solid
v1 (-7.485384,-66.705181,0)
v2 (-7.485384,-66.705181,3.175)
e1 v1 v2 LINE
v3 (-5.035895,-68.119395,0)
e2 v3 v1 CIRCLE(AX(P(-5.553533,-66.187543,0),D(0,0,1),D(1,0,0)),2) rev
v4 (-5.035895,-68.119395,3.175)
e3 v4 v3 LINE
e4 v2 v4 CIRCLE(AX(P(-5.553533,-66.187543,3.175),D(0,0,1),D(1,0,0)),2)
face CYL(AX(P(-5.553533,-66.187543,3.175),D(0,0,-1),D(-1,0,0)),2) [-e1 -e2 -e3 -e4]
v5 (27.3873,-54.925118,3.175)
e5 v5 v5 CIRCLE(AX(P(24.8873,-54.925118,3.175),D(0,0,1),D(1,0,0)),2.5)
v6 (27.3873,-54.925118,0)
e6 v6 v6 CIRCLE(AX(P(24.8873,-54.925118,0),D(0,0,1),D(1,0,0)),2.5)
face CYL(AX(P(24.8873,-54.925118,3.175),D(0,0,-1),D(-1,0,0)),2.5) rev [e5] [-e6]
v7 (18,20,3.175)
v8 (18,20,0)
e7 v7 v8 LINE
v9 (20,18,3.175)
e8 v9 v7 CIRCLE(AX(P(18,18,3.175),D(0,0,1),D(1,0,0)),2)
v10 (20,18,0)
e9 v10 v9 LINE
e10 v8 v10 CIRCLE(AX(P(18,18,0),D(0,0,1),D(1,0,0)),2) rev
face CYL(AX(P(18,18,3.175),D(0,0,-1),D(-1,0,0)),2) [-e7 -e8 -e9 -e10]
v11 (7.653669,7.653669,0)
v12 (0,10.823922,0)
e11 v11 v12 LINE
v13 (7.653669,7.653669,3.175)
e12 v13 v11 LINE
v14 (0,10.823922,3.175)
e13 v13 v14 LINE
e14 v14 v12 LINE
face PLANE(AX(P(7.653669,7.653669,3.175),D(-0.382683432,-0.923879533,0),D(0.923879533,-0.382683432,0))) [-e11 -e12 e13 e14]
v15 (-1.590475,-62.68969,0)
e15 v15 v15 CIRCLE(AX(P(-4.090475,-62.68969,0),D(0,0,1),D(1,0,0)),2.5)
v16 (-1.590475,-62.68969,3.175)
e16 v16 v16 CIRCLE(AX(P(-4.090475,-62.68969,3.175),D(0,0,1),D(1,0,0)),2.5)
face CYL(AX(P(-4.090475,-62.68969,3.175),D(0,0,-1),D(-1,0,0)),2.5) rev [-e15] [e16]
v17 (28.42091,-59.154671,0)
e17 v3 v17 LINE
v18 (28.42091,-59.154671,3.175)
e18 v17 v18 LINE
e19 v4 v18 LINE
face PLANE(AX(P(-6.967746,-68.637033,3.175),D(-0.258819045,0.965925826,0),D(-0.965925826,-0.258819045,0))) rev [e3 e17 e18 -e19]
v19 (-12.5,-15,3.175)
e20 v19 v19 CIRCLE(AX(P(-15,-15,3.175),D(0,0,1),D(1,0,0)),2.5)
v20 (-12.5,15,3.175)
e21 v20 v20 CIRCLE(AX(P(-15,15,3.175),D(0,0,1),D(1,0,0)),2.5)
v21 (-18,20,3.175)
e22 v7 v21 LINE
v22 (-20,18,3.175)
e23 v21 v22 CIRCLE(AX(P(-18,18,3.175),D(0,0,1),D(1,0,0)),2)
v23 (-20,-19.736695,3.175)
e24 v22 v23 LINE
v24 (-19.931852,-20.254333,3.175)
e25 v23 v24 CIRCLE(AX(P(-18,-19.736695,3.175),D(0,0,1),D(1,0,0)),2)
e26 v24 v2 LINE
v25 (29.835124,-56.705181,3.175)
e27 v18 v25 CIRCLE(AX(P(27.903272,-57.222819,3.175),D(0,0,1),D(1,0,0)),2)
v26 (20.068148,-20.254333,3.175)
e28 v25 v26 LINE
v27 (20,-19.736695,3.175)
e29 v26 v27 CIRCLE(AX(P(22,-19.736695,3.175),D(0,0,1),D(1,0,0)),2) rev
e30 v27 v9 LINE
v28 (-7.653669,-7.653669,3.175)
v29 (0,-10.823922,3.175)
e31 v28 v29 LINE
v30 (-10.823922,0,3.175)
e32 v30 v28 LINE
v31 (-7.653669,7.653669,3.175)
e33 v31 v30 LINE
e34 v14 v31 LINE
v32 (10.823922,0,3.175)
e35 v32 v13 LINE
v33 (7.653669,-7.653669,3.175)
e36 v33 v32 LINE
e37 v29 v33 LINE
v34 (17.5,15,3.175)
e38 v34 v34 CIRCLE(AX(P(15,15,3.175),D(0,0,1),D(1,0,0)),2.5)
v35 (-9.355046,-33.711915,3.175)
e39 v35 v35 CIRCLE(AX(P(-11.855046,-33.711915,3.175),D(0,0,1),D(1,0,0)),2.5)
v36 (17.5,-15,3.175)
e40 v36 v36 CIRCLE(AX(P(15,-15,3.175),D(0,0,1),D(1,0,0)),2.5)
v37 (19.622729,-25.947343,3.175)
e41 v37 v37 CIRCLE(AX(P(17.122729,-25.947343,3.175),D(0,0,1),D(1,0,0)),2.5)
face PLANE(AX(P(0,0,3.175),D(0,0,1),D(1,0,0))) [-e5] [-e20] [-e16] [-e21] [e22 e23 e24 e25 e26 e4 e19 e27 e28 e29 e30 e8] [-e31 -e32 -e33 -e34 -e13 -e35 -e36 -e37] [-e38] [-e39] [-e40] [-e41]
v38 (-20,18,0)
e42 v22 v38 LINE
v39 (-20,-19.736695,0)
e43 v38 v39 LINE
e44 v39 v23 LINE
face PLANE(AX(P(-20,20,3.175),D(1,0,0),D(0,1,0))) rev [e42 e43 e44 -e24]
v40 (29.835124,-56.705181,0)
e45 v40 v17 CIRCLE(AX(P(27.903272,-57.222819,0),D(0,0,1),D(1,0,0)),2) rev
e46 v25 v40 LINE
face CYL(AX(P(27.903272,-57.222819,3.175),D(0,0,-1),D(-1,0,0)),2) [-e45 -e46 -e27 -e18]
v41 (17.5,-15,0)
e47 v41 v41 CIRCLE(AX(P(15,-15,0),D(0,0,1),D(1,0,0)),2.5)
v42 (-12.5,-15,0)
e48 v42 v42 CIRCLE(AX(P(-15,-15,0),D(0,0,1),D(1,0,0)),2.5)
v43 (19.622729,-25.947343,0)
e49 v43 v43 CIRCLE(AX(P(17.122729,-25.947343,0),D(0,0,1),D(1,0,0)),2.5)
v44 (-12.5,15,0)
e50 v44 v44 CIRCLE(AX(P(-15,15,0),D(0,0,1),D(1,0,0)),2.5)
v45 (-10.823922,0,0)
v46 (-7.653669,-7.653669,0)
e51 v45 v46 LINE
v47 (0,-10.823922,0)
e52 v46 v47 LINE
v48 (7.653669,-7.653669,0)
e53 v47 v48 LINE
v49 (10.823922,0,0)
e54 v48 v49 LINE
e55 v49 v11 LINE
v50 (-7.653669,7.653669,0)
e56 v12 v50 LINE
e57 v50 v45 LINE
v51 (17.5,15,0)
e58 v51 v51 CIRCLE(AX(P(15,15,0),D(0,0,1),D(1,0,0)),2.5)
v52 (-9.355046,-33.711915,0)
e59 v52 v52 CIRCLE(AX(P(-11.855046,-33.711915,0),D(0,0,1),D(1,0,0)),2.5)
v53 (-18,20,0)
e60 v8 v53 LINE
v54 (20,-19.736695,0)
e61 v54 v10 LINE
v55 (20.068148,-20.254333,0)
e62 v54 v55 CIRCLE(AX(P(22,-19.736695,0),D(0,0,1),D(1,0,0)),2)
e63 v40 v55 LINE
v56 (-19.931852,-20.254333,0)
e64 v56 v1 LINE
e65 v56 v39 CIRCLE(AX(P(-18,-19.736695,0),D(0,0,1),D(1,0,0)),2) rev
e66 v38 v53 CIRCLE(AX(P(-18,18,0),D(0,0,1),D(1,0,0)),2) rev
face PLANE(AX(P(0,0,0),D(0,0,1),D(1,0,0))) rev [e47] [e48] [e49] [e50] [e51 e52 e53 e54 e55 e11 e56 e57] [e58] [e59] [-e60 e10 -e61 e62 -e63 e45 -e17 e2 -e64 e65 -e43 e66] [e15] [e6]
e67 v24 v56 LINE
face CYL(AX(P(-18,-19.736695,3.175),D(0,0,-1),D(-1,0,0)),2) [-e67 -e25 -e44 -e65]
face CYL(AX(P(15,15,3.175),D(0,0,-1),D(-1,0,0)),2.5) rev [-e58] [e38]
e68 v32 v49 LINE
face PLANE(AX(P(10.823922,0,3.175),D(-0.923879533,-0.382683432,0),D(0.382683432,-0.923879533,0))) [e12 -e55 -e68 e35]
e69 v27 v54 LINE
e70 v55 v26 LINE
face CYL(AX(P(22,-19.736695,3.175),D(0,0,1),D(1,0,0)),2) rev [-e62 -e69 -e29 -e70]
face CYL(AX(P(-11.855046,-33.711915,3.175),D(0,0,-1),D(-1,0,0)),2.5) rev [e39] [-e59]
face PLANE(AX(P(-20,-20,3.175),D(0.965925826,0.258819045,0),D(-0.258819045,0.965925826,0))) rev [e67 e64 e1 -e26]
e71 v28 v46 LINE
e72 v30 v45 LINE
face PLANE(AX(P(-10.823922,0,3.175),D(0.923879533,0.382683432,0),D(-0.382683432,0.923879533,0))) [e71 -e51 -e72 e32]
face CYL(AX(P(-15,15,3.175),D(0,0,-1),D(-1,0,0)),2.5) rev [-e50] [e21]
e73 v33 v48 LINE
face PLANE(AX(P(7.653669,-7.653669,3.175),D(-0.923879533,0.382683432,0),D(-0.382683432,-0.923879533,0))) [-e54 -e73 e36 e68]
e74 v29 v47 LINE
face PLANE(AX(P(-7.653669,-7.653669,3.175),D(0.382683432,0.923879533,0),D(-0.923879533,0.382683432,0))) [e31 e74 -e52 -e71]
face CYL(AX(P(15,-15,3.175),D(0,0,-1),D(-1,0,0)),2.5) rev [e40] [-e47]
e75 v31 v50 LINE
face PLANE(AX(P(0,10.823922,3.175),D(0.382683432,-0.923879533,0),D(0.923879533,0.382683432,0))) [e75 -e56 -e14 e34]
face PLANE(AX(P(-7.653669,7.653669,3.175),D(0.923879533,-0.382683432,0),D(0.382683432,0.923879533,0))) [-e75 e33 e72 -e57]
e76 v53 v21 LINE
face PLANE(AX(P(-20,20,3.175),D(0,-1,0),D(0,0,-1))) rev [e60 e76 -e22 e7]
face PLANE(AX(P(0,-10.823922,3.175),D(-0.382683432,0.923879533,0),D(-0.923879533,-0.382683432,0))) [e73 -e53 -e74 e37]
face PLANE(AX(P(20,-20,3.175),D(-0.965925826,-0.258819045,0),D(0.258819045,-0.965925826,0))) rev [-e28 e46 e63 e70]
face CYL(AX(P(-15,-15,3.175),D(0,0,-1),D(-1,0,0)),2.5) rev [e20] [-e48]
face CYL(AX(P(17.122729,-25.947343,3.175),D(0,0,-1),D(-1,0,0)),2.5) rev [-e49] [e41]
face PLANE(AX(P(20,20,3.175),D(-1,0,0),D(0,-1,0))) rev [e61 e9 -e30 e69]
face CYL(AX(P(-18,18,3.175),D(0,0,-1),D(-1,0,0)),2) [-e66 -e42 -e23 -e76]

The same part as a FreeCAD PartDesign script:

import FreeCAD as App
import Part
import Sketcher

V = App.Vector
Q = App.Units.Quantity


def edges_at(feature, points):
    """Names of the edges that pass closest to the given points."""
    edges = feature.Shape.Edges
    near = lambda p: min(range(len(edges)), key=lambda i: edges[i].distToShape(Part.Vertex(*p))[0])
    return sorted({f"Edge{near(p) + 1}" for p in points})

doc = App.newDocument("Part")
body = doc.addObject("PartDesign::Body", "Body")

# Sketch on XY plane
sketch1 = body.newObject("Sketcher::SketchObject", "Sketch")
sketch1.AttachmentSupport = (doc.getObject("XY_Plane"), [""])
sketch1.MapMode = "FlatFace"
sketch1.addGeometry([
    Part.LineSegment(V(20, 20, 0), V(-20, 20, 0)),  # 0
    Part.LineSegment(V(-20, 20, 0), V(-20, -20, 0)),  # 1
    Part.LineSegment(V(-20, -20, 0), V(-7, -68.6, 0)),  # 2
    Part.LineSegment(V(-7, -68.6, 0), V(30.4, -58.6, 0)),  # 3
    Part.LineSegment(V(30.4, -58.6, 0), V(20, -20, 0)),  # 4
    Part.LineSegment(V(20, -20, 0), V(20, 20, 0)),  # 5
    Part.Circle(V(24.9, -54.9, 0), V(0, 0, 1), 2.5),  # 6
    Part.Circle(V(17.1, -25.9, 0), V(0, 0, 1), 2.5),  # 7
    Part.Circle(V(-4.1, -62.7, 0), V(0, 0, 1), 2.5),  # 8
    Part.Circle(V(-11.9, -33.7, 0), V(0, 0, 1), 2.5),  # 9
    Part.Circle(V(15, -15, 0), V(0, 0, 1), 2.5),  # 10
    Part.Circle(V(15, 15, 0), V(0, 0, 1), 2.5),  # 11
    Part.Circle(V(-15, -15, 0), V(0, 0, 1), 2.5),  # 12
    Part.LineSegment(V(10.8, 0, 0), V(7.7, -7.7, 0)),  # 13
    Part.LineSegment(V(7.7, -7.7, 0), V(0, -10.8, 0)),  # 14
    Part.LineSegment(V(0, -10.8, 0), V(-7.7, -7.7, 0)),  # 15
    Part.LineSegment(V(-7.7, -7.7, 0), V(-10.8, 0, 0)),  # 16
    Part.LineSegment(V(-10.8, 0, 0), V(-7.7, 7.7, 0)),  # 17
    Part.LineSegment(V(-7.7, 7.7, 0), V(0, 10.8, 0)),  # 18
    Part.LineSegment(V(0, 10.8, 0), V(7.7, 7.7, 0)),  # 19
    Part.LineSegment(V(7.7, 7.7, 0), V(10.8, 0, 0)),  # 20
    Part.Circle(V(-15, 15, 0), V(0, 0, 1), 2.5),  # 21
], False)
sketch1.addConstraint([
    Sketcher.Constraint("Coincident", 0, 2, 1, 1),
    Sketcher.Constraint("Coincident", 1, 2, 2, 1),
    Sketcher.Constraint("Coincident", 2, 2, 3, 1),
    Sketcher.Constraint("Coincident", 3, 2, 4, 1),
    Sketcher.Constraint("Coincident", 4, 2, 5, 1),
    Sketcher.Constraint("Coincident", 5, 2, 0, 1),
    Sketcher.Constraint("Coincident", 13, 2, 14, 1),
    Sketcher.Constraint("Coincident", 14, 2, 15, 1),
    Sketcher.Constraint("Coincident", 15, 2, 16, 1),
    Sketcher.Constraint("Coincident", 16, 2, 17, 1),
    Sketcher.Constraint("Coincident", 17, 2, 18, 1),
    Sketcher.Constraint("Coincident", 18, 2, 19, 1),
    Sketcher.Constraint("Coincident", 19, 2, 20, 1),
    Sketcher.Constraint("Coincident", 20, 2, 13, 1),
    Sketcher.Constraint("Horizontal", 0),
    Sketcher.Constraint("Vertical", 1),
    Sketcher.Constraint("Vertical", 5),
    Sketcher.Constraint("Equal", 6, 7),
    Sketcher.Constraint("Equal", 7, 8),
    Sketcher.Constraint("Equal", 8, 9),
    Sketcher.Constraint("Equal", 9, 10),
    Sketcher.Constraint("Equal", 10, 11),
    Sketcher.Constraint("Equal", 11, 12),
    Sketcher.Constraint("Equal", 12, 21),
    Sketcher.Constraint("Symmetric", 11, 3, 12, 3, -1, 1),
    Sketcher.Constraint("Symmetric", 10, 3, 21, 3, -1, 1),
    Sketcher.Constraint("Symmetric", 0, 2, 4, 2, -1, 1),
    Sketcher.Constraint("Symmetric", 13, 2, 17, 2, -1, 1),
    Sketcher.Constraint("Symmetric", 14, 2, 18, 2, -1, 1),
    Sketcher.Constraint("Symmetric", 15, 2, 19, 2, -1, 1),
    Sketcher.Constraint("Symmetric", 16, 2, 20, 2, -1, 1),
    Sketcher.Constraint("Symmetric", 10, 3, 12, 3, -2),
    Sketcher.Constraint("Symmetric", 13, 2, 15, 2, -2),
    Sketcher.Constraint("PointOnObject", 14, 2, -2),
    Sketcher.Constraint("PointOnObject", 16, 2, -1),
    Sketcher.Constraint("Perpendicular", 2, 3),
    Sketcher.Constraint("Perpendicular", 3, 4),
    Sketcher.Constraint("Perpendicular", 13, 15),
    Sketcher.Constraint("Horizontal", 1, 2, 4, 2),
    Sketcher.Constraint("Equal", 0, 1),
    Sketcher.Constraint("Equal", 13, 14),
    Sketcher.Constraint("Diameter", 6, 5.0),
    Sketcher.Constraint("DistanceX", 0, 2, 0, 1, 40.0),
    Sketcher.Constraint("Angle", 2, Q("-75 deg")),
    Sketcher.Constraint("Distance", 4, 40.0),
    Sketcher.Constraint("DistanceX", -1, 1, 10, 3, 15.0),
    Sketcher.Constraint("DistanceY", 10, 3, -1, 1, 15.0),
    Sketcher.Constraint("Angle", 13, Q("-112.5 deg")),
    Sketcher.Constraint("DistanceX", -1, 1, 6, 3, 24.8873),
    Sketcher.Constraint("DistanceX", 9, 3, 2, 2, 4.8873),
    Sketcher.Constraint("Distance", 13, 8.284271),
    Sketcher.Constraint("DistanceY", 6, 3, -1, 1, 54.925118),
    Sketcher.Constraint("DistanceX", -1, 1, 7, 3, 17.122729),
    Sketcher.Constraint("DistanceY", 8, 3, -1, 1, 62.68969),
    Sketcher.Constraint("DistanceX", 9, 3, 8, 3, 7.764571),
    Sketcher.Constraint("DistanceY", 9, 3, 7, 3, 7.764571),
    Sketcher.Constraint("DistanceY", 2, 2, 9, 3, 34.925118),
])
pad1 = body.newObject("PartDesign::Pad", "Pad")
pad1.Profile = sketch1
pad1.Length = 3.175
doc.recompute()

fillet = body.newObject("PartDesign::Fillet", "Fillet")
fillet.Base = (pad1, edges_at(pad1, [
    (-20, 20, 1.587),
    (20, 20, 1.587),
    (20, -20, 1.587),
    (30.353, -58.637, 1.587),
    (-6.968, -68.637, 1.587),
    (-20, -20, 1.587),
]))
fillet.Radius = 2

doc.recompute()
